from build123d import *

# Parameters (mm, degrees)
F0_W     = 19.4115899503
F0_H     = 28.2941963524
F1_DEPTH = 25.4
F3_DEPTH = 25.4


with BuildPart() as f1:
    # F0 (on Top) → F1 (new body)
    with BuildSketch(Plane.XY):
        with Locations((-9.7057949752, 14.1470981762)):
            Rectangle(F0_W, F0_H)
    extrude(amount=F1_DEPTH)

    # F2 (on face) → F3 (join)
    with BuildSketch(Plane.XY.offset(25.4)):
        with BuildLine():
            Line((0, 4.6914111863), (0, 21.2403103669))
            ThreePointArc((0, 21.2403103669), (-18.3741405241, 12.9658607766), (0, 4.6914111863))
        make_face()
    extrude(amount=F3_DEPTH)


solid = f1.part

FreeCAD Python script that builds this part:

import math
import FreeCAD as App
import Part
import Sketcher
Q = App.Units.Quantity

doc = App.newDocument("Part")
body = doc.addObject("PartDesign::Body", "Body")

# Sketch on XY plane
sketch1 = body.newObject("Sketcher::SketchObject", "Sketch")
sketch1.AttachmentSupport = (doc.getObject("XY_Plane"), [""])
sketch1.MapMode = "FlatFace"
sketch1.addGeometry(Part.LineSegment(App.Vector(-19.41159, 28.294196, 0), App.Vector(-19.41159, 0, 0)), False)
sketch1.addGeometry(Part.LineSegment(App.Vector(-19.41159, 0, 0), App.Vector(0, 0, 0)), False)
sketch1.addGeometry(Part.LineSegment(App.Vector(0, 0, 0), App.Vector(0, 28.294196, 0)), False)
sketch1.addGeometry(Part.LineSegment(App.Vector(0, 28.294196, 0), App.Vector(-19.41159, 28.294196, 0)), False)
sketch1.addConstraint(Sketcher.Constraint("Coincident", 0, 2, 1, 1))
sketch1.addConstraint(Sketcher.Constraint("Coincident", 1, 2, 2, 1))
sketch1.addConstraint(Sketcher.Constraint("Coincident", 2, 2, 3, 1))
sketch1.addConstraint(Sketcher.Constraint("Coincident", 3, 2, 0, 1))
sketch1.addConstraint(Sketcher.Constraint("Vertical", 0))
sketch1.addConstraint(Sketcher.Constraint("Horizontal", 1))
sketch1.addConstraint(Sketcher.Constraint("Vertical", 2))
sketch1.addConstraint(Sketcher.Constraint("Horizontal", 3))
sketch1.addConstraint(Sketcher.Constraint("Coincident", 1, 2, -1, 1))
sketch1.addConstraint(Sketcher.Constraint("DistanceX", 1, 1, 1, 2, 19.41159))
sketch1.addConstraint(Sketcher.Constraint("DistanceY", 0, 2, 0, 1, 28.294196))
pad1 = body.newObject("PartDesign::Pad", "Pad")
pad1.Profile = sketch1
pad1.Length = Q("1 in")

# Sketch on XY plane
sketch2 = body.newObject("Sketcher::SketchObject", "Sketch001")
sketch2.AttachmentSupport = (doc.getObject("XY_Plane"), [""])
sketch2.MapMode = "FlatFace"
sketch2.AttachmentOffset = App.Placement(App.Vector(0, 0, 1 * 25.4), App.Rotation())
sketch2.addGeometry(Part.LineSegment(App.Vector(0, 4.691411, 0), App.Vector(0, 21.24031, 0)), False)
sketch2.addGeometry(Part.ArcOfCircle(Part.Circle(App.Vector(-7.323949, 12.965861, 0), App.Vector(0, 0, 1), 11.050192), math.radians(48.487053), math.radians(311.512947)), False)
sketch2.addConstraint(Sketcher.Constraint("Coincident", 0, 1, 1, 2))
sketch2.addConstraint(Sketcher.Constraint("Coincident", 1, 1, 0, 2))
sketch2.addConstraint(Sketcher.Constraint("Vertical", 0))
sketch2.addConstraint(Sketcher.Constraint("PointOnObject", 0, 1, -2))
sketch2.addConstraint(Sketcher.Constraint("Radius", 1, 11.050192))
sketch2.addConstraint(Sketcher.Constraint("DistanceY", 0, 1, 0, 2, 16.548899))
sketch2.addConstraint(Sketcher.Constraint("DistanceY", -1, 1, 1, 3, 12.965861))
pad2 = body.newObject("PartDesign::Pad", "Pad001")
pad2.Profile = sketch2
pad2.Length = Q("1 in")

doc.recompute()
